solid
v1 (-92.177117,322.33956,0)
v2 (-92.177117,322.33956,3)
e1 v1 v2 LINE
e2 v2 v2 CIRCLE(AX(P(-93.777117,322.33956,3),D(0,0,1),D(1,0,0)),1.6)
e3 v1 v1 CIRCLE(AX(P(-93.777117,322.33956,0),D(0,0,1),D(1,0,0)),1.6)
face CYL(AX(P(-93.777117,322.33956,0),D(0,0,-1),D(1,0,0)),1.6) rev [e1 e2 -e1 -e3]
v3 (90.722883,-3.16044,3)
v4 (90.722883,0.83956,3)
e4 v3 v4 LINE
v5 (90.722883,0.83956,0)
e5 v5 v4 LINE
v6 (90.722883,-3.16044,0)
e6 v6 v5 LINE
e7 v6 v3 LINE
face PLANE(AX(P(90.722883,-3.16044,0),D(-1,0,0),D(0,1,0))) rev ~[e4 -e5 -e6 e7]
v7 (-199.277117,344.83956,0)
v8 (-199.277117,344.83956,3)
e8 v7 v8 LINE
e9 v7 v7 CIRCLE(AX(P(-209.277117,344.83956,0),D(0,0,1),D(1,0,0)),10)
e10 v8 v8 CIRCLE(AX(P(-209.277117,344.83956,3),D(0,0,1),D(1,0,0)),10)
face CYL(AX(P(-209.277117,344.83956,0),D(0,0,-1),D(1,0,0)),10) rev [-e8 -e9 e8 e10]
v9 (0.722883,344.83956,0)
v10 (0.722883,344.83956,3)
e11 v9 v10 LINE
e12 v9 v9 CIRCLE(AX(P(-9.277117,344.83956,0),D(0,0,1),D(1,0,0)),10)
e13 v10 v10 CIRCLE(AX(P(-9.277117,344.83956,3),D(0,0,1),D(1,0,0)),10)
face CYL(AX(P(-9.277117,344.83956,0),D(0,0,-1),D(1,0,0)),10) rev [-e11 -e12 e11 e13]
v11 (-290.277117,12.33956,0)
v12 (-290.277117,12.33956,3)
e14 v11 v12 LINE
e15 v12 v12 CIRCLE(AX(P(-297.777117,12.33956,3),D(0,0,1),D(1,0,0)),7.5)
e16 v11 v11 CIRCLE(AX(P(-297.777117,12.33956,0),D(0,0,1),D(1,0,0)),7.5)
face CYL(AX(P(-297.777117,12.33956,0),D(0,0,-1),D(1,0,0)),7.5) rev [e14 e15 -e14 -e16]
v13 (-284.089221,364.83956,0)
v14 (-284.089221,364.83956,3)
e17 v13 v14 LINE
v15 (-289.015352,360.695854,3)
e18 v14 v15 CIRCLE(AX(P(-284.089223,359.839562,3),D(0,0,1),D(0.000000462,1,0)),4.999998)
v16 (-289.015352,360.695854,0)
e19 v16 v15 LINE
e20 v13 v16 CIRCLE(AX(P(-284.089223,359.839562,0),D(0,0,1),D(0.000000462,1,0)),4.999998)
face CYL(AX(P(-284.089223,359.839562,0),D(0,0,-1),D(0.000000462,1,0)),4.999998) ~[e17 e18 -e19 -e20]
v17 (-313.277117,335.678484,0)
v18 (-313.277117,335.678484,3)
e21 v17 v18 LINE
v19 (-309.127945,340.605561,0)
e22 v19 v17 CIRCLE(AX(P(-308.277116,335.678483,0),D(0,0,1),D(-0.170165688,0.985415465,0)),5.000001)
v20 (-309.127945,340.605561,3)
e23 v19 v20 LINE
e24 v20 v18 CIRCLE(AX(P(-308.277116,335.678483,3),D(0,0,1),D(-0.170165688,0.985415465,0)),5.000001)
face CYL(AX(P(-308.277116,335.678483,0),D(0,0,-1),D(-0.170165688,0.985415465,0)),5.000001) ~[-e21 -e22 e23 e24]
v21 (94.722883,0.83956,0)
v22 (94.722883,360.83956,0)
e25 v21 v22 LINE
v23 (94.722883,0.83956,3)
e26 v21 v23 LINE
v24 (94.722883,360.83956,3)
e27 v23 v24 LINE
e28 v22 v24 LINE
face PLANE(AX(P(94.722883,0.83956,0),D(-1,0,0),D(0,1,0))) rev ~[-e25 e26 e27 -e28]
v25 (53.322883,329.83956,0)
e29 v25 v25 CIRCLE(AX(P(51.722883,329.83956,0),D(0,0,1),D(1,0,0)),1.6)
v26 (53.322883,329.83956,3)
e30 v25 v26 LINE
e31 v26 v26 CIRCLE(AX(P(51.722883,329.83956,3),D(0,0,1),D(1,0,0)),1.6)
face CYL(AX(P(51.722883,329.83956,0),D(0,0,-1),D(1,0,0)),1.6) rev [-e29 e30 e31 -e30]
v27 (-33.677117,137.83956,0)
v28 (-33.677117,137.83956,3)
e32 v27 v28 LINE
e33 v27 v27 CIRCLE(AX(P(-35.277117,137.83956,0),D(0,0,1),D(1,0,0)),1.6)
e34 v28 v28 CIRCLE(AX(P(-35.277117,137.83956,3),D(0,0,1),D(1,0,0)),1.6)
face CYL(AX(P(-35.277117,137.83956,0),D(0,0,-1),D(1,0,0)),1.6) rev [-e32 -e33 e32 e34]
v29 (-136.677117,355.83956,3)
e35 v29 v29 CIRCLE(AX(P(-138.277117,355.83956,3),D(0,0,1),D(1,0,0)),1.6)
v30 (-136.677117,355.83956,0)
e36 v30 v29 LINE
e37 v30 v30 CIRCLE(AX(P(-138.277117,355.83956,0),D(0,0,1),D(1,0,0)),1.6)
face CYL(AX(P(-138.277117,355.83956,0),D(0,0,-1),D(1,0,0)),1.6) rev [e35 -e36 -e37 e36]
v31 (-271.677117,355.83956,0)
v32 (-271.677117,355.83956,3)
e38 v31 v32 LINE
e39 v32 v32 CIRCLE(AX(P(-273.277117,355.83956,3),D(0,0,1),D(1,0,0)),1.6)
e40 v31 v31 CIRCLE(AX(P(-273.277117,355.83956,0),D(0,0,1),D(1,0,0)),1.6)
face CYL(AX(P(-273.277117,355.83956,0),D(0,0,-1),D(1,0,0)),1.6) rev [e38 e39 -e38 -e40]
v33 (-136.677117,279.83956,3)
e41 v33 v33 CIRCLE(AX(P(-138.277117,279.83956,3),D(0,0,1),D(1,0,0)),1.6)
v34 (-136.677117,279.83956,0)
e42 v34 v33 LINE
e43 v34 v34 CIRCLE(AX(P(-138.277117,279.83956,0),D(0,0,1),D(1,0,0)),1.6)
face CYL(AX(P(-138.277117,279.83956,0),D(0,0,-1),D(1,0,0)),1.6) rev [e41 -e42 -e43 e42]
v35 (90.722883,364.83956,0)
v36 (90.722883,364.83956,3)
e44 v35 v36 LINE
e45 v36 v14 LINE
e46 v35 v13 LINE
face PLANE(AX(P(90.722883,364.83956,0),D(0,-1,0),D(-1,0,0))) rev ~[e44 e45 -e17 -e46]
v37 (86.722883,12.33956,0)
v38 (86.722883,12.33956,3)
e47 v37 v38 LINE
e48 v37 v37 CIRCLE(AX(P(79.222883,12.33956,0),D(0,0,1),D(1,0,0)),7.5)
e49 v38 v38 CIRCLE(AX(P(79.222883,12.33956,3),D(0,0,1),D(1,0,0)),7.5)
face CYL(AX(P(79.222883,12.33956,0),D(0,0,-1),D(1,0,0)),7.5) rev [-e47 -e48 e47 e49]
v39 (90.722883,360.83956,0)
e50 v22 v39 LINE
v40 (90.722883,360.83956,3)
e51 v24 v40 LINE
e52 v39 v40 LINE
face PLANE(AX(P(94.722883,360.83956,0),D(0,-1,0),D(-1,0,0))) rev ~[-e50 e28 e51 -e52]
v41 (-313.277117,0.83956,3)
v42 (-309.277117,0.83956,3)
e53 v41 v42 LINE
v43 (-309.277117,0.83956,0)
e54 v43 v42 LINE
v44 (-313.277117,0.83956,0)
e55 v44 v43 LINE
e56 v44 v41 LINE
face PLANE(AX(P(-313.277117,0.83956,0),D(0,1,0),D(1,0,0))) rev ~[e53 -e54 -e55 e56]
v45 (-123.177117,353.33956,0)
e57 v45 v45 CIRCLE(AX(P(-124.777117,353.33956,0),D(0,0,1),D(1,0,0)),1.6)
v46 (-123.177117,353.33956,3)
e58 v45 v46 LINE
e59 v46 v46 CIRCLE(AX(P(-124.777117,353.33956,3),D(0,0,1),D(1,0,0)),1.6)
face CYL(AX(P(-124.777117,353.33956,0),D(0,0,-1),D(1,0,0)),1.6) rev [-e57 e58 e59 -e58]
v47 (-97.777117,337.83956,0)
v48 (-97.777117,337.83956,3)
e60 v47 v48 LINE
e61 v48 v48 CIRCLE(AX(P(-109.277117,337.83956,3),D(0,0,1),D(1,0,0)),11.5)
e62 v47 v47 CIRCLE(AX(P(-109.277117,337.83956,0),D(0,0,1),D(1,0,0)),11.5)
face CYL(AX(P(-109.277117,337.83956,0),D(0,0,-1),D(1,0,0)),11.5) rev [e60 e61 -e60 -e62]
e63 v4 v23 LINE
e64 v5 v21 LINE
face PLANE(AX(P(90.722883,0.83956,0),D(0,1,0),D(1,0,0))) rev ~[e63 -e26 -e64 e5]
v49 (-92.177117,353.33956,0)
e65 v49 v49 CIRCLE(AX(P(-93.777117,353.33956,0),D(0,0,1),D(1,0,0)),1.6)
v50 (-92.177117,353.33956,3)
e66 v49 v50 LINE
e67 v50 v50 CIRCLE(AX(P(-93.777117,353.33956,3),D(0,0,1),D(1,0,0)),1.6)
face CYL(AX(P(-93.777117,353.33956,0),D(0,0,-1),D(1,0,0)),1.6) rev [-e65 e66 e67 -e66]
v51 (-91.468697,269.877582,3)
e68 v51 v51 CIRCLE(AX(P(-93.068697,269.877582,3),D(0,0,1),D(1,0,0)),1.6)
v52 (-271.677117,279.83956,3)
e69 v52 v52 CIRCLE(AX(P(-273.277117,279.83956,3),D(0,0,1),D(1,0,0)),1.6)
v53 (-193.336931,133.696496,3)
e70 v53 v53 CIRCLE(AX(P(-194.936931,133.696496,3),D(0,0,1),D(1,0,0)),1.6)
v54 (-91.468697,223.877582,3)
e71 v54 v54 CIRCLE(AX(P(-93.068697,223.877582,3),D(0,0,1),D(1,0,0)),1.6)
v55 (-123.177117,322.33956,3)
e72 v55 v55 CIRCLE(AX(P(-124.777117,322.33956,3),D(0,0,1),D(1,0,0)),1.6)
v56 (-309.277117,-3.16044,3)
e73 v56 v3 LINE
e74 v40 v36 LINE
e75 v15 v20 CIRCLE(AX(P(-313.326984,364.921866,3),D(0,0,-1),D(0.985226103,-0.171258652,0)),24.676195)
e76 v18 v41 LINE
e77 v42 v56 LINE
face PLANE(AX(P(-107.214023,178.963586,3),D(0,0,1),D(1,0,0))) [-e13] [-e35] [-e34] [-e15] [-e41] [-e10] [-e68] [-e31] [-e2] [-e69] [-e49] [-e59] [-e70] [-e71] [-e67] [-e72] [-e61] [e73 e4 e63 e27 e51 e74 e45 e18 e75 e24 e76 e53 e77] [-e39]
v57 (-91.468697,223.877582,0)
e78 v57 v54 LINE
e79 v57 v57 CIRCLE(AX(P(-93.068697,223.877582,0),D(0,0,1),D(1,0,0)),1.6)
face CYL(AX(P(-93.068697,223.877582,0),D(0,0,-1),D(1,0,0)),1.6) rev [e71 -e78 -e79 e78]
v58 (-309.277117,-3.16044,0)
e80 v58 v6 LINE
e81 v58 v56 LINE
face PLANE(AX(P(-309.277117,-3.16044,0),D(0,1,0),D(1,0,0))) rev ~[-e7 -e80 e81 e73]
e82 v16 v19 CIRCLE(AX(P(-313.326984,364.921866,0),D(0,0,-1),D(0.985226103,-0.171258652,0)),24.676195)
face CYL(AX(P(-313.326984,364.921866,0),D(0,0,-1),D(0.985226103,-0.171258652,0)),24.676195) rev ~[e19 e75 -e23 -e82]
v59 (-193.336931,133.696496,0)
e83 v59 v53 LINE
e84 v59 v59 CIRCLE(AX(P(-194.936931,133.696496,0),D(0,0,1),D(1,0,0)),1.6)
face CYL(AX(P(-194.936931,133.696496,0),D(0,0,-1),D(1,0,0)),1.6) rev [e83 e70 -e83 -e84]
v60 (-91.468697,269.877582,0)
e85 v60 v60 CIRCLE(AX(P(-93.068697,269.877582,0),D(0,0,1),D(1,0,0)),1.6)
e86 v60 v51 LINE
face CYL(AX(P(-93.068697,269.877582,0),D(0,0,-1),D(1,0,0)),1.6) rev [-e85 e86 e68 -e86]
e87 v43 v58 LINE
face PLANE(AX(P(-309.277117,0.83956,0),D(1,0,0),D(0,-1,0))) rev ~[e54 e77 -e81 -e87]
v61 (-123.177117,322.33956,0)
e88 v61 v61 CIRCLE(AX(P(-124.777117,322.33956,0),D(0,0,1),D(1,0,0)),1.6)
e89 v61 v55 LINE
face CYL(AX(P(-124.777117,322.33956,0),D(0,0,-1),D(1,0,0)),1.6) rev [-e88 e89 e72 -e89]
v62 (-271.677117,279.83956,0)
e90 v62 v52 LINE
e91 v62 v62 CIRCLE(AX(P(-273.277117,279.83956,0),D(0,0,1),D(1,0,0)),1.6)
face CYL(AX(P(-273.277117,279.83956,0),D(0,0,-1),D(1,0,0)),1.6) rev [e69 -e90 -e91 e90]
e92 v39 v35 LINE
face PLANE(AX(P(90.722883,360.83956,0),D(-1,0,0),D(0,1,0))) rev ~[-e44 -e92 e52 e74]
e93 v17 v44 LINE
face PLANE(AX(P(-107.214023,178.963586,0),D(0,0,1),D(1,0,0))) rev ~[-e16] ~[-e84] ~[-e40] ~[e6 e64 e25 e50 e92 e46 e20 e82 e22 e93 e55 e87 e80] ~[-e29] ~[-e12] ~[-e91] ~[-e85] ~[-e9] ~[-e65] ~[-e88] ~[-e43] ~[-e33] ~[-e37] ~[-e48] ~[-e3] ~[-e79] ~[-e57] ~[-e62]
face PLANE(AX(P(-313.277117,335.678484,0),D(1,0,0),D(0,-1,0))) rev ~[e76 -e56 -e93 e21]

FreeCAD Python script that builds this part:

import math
import FreeCAD as App
import Part
import Sketcher

V = App.Vector
Q = App.Units.Quantity

doc = App.newDocument("Part")
body = doc.addObject("PartDesign::Body", "Body")

sketch1 = body.newObject("Sketcher::SketchObject", "Sketch")
sketch1.AttachmentSupport = (doc.getObject("XY_Plane"), [""])
sketch1.MapMode = "FlatFace"
sketch1.addGeometry([
    Part.LineSegment(V(90.7, 364.8, 0), V(-284.1, 364.8, 0)),
    Part.ArcOfCircle(Part.Circle(V(-284.1, 359.8, 0), V(0, 0, 1), 5), math.radians(90), math.radians(170)),
    Part.ArcOfCircle(Part.Circle(V(-313.3, 364.9, 0), V(0, 0, 1), 24.7), math.radians(-80), math.radians(-10)),
    Part.ArcOfCircle(Part.Circle(V(-308.3, 335.7, 0), V(0, 0, 1), 5), math.radians(100), math.radians(180)),
    Part.LineSegment(V(-313.3, 335.7, 0), V(-313.3, 0.8, 0)),
    Part.LineSegment(V(-313.3, 0.8, 0), V(-309.3, 0.8, 0)),
    Part.LineSegment(V(-309.3, 0.8, 0), V(-309.3, -3.2, 0)),
    Part.LineSegment(V(-309.3, -3.2, 0), V(90.7, -3.2, 0)),
    Part.LineSegment(V(90.7, -3.2, 0), V(90.7, 0.8, 0)),
    Part.LineSegment(V(90.7, 0.8, 0), V(94.7, 0.8, 0)),
    Part.LineSegment(V(94.7, 0.8, 0), V(94.7, 360.8, 0)),
    Part.LineSegment(V(94.7, 360.8, 0), V(90.7, 360.8, 0)),
    Part.LineSegment(V(90.7, 360.8, 0), V(90.7, 364.8, 0)),
    Part.Circle(V(-297.8, 12.3, 0), V(0, 0, 1), 7.5),
    Part.Circle(V(-194.9, 133.7, 0), V(0, 0, 1), 1.6),
    Part.Circle(V(79.2, 12.3, 0), V(0, 0, 1), 7.5),
    Part.Circle(V(-35.3, 137.8, 0), V(0, 0, 1), 1.6),
    Part.Circle(V(-273.3, 279.8, 0), V(0, 0, 1), 1.6),
    Part.Circle(V(-273.3, 355.8, 0), V(0, 0, 1), 1.6),
    Part.Circle(V(-209.3, 344.8, 0), V(0, 0, 1), 10),
    Part.Circle(V(-138.3, 279.8, 0), V(0, 0, 1), 1.6),
    Part.Circle(V(-124.8, 322.3, 0), V(0, 0, 1), 1.6),
    Part.Circle(V(-138.3, 355.8, 0), V(0, 0, 1), 1.6),
    Part.Circle(V(-109.3, 337.8, 0), V(0, 0, 1), 11.5),
    Part.Circle(V(-124.8, 353.3, 0), V(0, 0, 1), 1.6),
    Part.Circle(V(-93.1, 223.9, 0), V(0, 0, 1), 1.6),
    Part.Circle(V(-93.1, 269.9, 0), V(0, 0, 1), 1.6),
    Part.Circle(V(-93.8, 322.3, 0), V(0, 0, 1), 1.6),
    Part.Circle(V(-93.8, 353.3, 0), V(0, 0, 1), 1.6),
    Part.Circle(V(-9.3, 344.8, 0), V(0, 0, 1), 10),
    Part.Circle(V(51.7, 329.8, 0), V(0, 0, 1), 1.6),
], False)
sketch1.addConstraint([
    Sketcher.Constraint("Tangent", 0, 2, 1, 1),
    Sketcher.Constraint("Tangent", 1, 2, 2, 2),
    Sketcher.Constraint("Tangent", 2, 1, 3, 1),
    Sketcher.Constraint("Tangent", 3, 2, 4, 1),
    Sketcher.Constraint("Coincident", 4, 2, 5, 1),
    Sketcher.Constraint("Coincident", 5, 2, 6, 1),
    Sketcher.Constraint("Coincident", 6, 2, 7, 1),
    Sketcher.Constraint("Coincident", 7, 2, 8, 1),
    Sketcher.Constraint("Coincident", 8, 2, 9, 1),
    Sketcher.Constraint("Coincident", 9, 2, 10, 1),
    Sketcher.Constraint("Coincident", 10, 2, 11, 1),
    Sketcher.Constraint("Coincident", 11, 2, 12, 1),
    Sketcher.Constraint("Coincident", 12, 2, 0, 1),
    Sketcher.Constraint("Horizontal", 0),
    Sketcher.Constraint("Vertical", 4),
    Sketcher.Constraint("Horizontal", 5),
    Sketcher.Constraint("Vertical", 6),
    Sketcher.Constraint("Horizontal", 7),
    Sketcher.Constraint("Vertical", 8),
    Sketcher.Constraint("Horizontal", 9),
    Sketcher.Constraint("Vertical", 10),
    Sketcher.Constraint("Horizontal", 11),
    Sketcher.Constraint("Vertical", 12),
    Sketcher.Constraint("Equal", 13, 15),
    Sketcher.Constraint("Equal", 14, 16),
    Sketcher.Constraint("Equal", 16, 17),
    Sketcher.Constraint("Equal", 17, 18),
    Sketcher.Constraint("Equal", 18, 20),
    Sketcher.Constraint("Equal", 20, 21),
    Sketcher.Constraint("Equal", 21, 22),
    Sketcher.Constraint("Equal", 22, 24),
    Sketcher.Constraint("Equal", 24, 25),
    Sketcher.Constraint("Equal", 25, 26),
    Sketcher.Constraint("Equal", 26, 27),
    Sketcher.Constraint("Equal", 27, 28),
    Sketcher.Constraint("Equal", 19, 29),
    Sketcher.Constraint("Equal", 28, 30),
    Sketcher.Constraint("Horizontal", 13, 3, 15, 3),
    Sketcher.Constraint("Horizontal", 17, 3, 20, 3),
    Sketcher.Constraint("Horizontal", 18, 3, 22, 3),
    Sketcher.Constraint("Horizontal", 21, 3, 27, 3),
    Sketcher.Constraint("Horizontal", 24, 3, 28, 3),
    Sketcher.Constraint("Horizontal", 19, 3, 29, 3),
    Sketcher.Constraint("Horizontal", 5, 2, 8, 2),
    Sketcher.Constraint("Vertical", 17, 3, 18, 3),
    Sketcher.Constraint("Vertical", 20, 3, 22, 3),
    Sketcher.Constraint("Vertical", 21, 3, 24, 3),
    Sketcher.Constraint("Vertical", 25, 3, 26, 3),
    Sketcher.Constraint("Vertical", 27, 3, 28, 3),
    Sketcher.Constraint("Vertical", 8, 2, 11, 2),
    Sketcher.Constraint("Equal", 5, 9),
    Sketcher.Constraint("Equal", 11, 6),
    Sketcher.Constraint("Equal", 8, 12),
    Sketcher.Constraint("Diameter", 13, Q("15 mm")),
    Sketcher.Constraint("Diameter", 19, Q("20 mm")),
    Sketcher.Constraint("Diameter", 23, Q("23 mm")),
    Sketcher.Constraint("Radius", 3, Q("5.000001 mm")),
    Sketcher.Constraint("Diameter", 14, Q("3.2 mm")),
    Sketcher.Constraint("DistanceX", 5, 1, 5, 2, Q("4 mm")),
    Sketcher.Constraint("DistanceX", 7, 1, 7, 2, Q("400 mm")),
    Sketcher.Constraint("DistanceY", 10, 1, 10, 2, Q("360 mm")),
    Sketcher.Constraint("DistanceX", 13, 3, 15, 3, Q("377 mm")),
    Sketcher.Constraint("DistanceX", 3, 3, 16, 3, Q("272.999999 mm")),
    Sketcher.Constraint("DistanceX", 3, 3, 17, 3, Q("34.999999 mm")),
    Sketcher.Constraint("DistanceY", 17, 3, 18, 3, Q("76 mm")),
    Sketcher.Constraint("DistanceX", 18, 3, 19, 3, Q("64 mm")),
    Sketcher.Constraint("DistanceY", 19, 3, 18, 3, Q("11 mm")),
    Sketcher.Constraint("DistanceX", 19, 3, 20, 3, Q("71 mm")),
    Sketcher.Constraint("DistanceX", 22, 3, 23, 3, Q("29 mm")),
    Sketcher.Constraint("DistanceY", 23, 3, 22, 3, Q("18 mm")),
    Sketcher.Constraint("DistanceY", 21, 3, 24, 3, Q("31 mm")),
    Sketcher.Constraint("DistanceY", 25, 3, 26, 3, Q("46 mm")),
    Sketcher.Constraint("DistanceX", 21, 3, 27, 3, Q("31 mm")),
    Sketcher.Constraint("DistanceX", 23, 3, 29, 3, Q("100 mm")),
    Sketcher.Constraint("DistanceX", 29, 3, 30, 3, Q("61 mm")),
    Sketcher.Constraint("DistanceY", 30, 3, 29, 3, Q("15 mm")),
    Sketcher.Constraint("DistanceY", 18, 3, 0, 2, Q("9 mm")),
    Sketcher.Constraint("DistanceY", 4, 2, 16, 3, Q("137 mm")),
    Sketcher.Constraint("DistanceX", 3, 3, 13, 3, Q("10.499999 mm")),
    Sketcher.Constraint("DistanceY", 15, 3, 16, 3, Q("125.5 mm")),
    Sketcher.Constraint("DistanceX", 20, 3, 21, 3, Q("13.5 mm")),
    Sketcher.Constraint("DistanceY", 20, 3, 21, 3, Q("42.5 mm")),
    Sketcher.Constraint("Radius", 1, Q("4.999998 mm")),
    Sketcher.Constraint("Radius", 2, Q("24.676195 mm")),
    Sketcher.Constraint("DistanceY", 2, 1, 1, 3, Q("19.234001 mm")),
    Sketcher.Constraint("DistanceX", 0, 2, 0, 1, Q("374.812104 mm")),
    Sketcher.Constraint("DistanceY", -1, 1, 13, 3, Q("12.33956 mm")),
    Sketcher.Constraint("DistanceX", 14, 3, -1, 1, Q("194.936931 mm")),
    Sketcher.Constraint("DistanceY", -1, 1, 25, 3, Q("223.877582 mm")),
    Sketcher.Constraint("DistanceX", 0, 2, -1, 1, Q("284.089221 mm")),
    Sketcher.Constraint("DistanceY", 14, 3, 2, 3, Q("231.22537 mm")),
    Sketcher.Constraint("DistanceX", 20, 3, 25, 3, Q("45.20842 mm")),
])
pad1 = body.newObject("PartDesign::Pad", "Pad")
pad1.Profile = sketch1
pad1.Length = 3

doc.recompute()
